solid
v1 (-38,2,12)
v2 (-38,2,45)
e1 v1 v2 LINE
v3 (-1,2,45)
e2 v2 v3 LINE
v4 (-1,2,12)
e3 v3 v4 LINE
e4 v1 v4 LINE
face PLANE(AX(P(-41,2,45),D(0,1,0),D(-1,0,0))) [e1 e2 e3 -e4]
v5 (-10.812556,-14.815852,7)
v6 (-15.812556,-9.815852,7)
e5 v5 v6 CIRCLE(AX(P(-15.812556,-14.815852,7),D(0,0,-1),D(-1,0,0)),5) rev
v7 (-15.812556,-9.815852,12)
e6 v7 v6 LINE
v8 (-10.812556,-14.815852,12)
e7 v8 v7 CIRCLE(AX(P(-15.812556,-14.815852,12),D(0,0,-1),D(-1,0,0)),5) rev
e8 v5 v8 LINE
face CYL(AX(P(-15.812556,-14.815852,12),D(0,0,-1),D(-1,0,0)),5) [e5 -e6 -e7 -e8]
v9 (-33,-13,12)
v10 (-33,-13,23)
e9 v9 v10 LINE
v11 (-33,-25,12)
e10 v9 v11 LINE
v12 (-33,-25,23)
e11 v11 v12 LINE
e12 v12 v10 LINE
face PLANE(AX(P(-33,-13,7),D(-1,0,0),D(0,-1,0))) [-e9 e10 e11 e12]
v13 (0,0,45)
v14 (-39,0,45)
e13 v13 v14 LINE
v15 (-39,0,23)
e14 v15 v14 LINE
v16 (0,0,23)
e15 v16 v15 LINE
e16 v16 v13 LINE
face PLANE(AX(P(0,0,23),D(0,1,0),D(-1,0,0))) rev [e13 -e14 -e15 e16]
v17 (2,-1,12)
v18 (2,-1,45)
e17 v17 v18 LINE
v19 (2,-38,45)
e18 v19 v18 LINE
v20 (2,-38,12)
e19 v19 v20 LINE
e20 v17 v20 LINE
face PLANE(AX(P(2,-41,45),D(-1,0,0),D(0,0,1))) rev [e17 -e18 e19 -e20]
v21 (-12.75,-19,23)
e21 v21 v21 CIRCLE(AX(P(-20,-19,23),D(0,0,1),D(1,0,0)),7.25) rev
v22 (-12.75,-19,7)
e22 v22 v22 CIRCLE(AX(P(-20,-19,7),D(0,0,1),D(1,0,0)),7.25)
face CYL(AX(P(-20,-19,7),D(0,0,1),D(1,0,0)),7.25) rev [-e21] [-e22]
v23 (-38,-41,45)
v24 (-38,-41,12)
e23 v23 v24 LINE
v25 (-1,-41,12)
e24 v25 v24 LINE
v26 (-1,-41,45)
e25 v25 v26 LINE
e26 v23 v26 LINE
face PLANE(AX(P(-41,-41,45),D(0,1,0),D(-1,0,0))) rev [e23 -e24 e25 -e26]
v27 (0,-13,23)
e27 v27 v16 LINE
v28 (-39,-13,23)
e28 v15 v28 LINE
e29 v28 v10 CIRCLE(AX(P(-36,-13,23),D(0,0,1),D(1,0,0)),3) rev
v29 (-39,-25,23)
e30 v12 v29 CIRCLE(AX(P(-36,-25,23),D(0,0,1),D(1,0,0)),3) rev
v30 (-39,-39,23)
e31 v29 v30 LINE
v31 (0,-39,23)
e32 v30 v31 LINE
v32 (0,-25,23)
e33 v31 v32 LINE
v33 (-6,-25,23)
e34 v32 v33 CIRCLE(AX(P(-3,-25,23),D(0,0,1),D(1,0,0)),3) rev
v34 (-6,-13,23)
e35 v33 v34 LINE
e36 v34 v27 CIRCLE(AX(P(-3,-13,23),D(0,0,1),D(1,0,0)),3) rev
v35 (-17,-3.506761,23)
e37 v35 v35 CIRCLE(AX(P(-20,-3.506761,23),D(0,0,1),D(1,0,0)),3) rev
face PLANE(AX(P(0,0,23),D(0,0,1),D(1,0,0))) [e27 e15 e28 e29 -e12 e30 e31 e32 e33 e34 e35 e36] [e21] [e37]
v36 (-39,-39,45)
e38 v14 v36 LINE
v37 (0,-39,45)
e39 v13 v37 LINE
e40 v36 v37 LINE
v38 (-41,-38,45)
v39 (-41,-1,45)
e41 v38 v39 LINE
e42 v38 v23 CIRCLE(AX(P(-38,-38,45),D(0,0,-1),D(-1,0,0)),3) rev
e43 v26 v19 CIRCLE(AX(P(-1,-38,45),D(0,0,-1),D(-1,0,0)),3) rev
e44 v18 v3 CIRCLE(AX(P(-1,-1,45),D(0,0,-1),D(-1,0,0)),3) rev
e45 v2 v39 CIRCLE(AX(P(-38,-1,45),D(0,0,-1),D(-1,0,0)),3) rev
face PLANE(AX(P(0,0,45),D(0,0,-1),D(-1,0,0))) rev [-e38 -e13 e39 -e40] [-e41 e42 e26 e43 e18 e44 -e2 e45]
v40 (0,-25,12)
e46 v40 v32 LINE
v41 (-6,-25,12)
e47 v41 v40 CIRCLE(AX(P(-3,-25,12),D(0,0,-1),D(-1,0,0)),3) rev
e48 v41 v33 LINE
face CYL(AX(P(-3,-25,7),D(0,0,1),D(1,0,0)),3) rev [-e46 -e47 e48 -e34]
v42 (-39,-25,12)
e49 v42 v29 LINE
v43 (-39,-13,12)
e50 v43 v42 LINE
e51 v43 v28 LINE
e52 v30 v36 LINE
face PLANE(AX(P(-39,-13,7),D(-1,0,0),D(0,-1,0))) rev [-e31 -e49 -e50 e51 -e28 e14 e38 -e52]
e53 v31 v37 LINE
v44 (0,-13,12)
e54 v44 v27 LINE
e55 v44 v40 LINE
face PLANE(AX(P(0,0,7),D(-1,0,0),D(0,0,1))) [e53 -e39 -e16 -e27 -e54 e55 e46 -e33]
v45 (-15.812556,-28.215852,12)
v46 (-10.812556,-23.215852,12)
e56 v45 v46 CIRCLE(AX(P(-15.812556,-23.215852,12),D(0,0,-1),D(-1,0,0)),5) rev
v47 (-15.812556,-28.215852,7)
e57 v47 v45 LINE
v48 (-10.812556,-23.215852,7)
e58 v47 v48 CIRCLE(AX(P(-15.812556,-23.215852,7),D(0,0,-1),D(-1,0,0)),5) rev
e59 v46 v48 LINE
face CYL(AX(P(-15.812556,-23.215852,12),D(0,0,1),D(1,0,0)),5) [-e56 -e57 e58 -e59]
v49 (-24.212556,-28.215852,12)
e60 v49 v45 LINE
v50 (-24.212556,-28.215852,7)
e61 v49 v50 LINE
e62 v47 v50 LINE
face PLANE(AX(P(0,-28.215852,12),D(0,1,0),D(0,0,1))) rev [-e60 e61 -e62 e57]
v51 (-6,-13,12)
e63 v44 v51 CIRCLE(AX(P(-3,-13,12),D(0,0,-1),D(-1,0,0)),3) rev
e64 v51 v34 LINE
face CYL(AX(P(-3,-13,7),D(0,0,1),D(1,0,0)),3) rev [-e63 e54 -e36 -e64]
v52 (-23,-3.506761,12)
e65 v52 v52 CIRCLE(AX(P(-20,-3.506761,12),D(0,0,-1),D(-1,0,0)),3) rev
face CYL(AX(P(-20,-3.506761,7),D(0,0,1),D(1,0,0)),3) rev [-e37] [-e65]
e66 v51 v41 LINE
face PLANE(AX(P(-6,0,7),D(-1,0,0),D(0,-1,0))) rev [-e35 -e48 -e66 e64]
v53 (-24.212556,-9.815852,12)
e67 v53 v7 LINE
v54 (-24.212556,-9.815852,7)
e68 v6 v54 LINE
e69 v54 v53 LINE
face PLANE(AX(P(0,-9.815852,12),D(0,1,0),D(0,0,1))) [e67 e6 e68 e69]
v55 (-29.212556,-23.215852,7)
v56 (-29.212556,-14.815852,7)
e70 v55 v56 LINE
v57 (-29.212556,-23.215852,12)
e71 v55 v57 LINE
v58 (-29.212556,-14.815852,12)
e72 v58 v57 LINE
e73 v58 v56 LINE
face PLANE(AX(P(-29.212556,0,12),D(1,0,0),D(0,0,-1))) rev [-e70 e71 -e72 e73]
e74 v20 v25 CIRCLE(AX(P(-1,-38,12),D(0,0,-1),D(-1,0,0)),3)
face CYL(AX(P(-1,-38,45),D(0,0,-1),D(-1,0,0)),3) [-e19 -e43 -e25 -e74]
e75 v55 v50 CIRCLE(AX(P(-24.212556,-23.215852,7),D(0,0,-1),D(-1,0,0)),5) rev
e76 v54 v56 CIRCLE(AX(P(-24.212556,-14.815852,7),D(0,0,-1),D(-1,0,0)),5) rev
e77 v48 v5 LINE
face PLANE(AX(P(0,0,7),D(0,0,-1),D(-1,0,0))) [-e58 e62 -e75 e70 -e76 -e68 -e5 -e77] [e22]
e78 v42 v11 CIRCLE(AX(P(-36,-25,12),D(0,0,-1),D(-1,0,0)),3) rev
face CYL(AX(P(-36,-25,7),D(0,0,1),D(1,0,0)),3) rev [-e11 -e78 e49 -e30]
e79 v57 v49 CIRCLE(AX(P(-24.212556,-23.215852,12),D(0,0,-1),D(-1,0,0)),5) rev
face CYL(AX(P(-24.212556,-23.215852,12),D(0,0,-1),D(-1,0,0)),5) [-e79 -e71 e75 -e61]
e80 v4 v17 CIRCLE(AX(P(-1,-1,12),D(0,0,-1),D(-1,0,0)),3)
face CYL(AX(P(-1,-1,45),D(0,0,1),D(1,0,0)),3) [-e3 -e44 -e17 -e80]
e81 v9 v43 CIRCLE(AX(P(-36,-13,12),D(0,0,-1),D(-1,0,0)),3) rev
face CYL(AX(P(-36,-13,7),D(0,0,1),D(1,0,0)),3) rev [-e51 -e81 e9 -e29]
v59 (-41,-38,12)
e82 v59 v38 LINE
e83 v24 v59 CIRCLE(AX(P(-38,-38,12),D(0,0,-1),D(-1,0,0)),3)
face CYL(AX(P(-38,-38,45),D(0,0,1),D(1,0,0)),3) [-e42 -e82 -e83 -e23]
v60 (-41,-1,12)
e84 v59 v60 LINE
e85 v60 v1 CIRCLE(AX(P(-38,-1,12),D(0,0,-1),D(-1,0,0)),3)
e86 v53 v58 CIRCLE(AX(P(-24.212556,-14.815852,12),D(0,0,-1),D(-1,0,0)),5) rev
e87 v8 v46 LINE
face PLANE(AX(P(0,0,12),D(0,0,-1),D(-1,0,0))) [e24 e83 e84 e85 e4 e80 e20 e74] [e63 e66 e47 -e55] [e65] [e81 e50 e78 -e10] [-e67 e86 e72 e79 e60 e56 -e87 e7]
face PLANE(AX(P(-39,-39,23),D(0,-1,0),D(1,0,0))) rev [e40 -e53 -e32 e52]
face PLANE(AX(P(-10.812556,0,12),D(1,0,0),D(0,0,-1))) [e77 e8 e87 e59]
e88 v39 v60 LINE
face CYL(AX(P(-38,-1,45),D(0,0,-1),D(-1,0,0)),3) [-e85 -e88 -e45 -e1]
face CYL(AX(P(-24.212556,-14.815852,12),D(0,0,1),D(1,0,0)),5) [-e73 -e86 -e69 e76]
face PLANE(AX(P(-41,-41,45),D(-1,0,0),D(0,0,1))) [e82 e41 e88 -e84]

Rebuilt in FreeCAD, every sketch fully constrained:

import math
import FreeCAD as App
import Part
import Sketcher
from FreeCAD import Vector


def edges_at(feature, points):
    """Names of the edges that pass closest to the given points."""
    edges = feature.Shape.Edges
    near = lambda p: min(range(len(edges)), key=lambda i: edges[i].distToShape(Part.Vertex(*p))[0])
    return sorted({f"Edge{near(p) + 1}" for p in points})


def add_polygon(sketch, points):
    """Adds a closed chain of lines whose ends are joined by coincident constraints."""
    first, n = sketch.GeometryCount, len(points)
    for a, b in zip(points, points[1:] + points[:1]):
        sketch.addGeometry(Part.LineSegment(App.Vector(*a, 0), App.Vector(*b, 0)), False)
    for i in range(n):
        sketch.addConstraint(Sketcher.Constraint("Coincident", first + i, 2, first + (i + 1) % n, 1))

doc = App.newDocument("Part")
body = doc.addObject("PartDesign::Body", "Body")

sketch1 = doc.addObject("Sketcher::SketchObject", "Sketch")
body.addObject(sketch1)
sketch1.AttachmentSupport = (doc.XY_Plane, [""])
sketch1.MapMode = "FlatFace"
add_polygon(sketch1, [(-41, -41), (2, -41), (2, 2), (-41, 2)])
sketch1.addConstraint([
    Sketcher.Constraint("Horizontal", 0),
    Sketcher.Constraint("Vertical", 1),
    Sketcher.Constraint("Horizontal", 2),
    Sketcher.Constraint("Vertical", 3),
    Sketcher.Constraint("Equal", 2, 1),
    Sketcher.Constraint("DistanceX", 0, 1, 0, 2, 43.0),
    Sketcher.Constraint("DistanceX", -1, 1, 0, 2, 2.0),
    Sketcher.Constraint("DistanceY", 0, 2, -1, 1, 41.0),
])
pad1 = doc.addObject("PartDesign::Pad", "Pad")
body.addObject(pad1)
pad1.Profile = sketch1
pad1.Length = 45

sketch2 = doc.addObject("Sketcher::SketchObject", "Sketch001")
body.addObject(sketch2)
sketch2.AttachmentSupport = (doc.XY_Plane, [""])
sketch2.MapMode = "FlatFace"
sketch2.AttachmentOffset = App.Placement(Vector(0, 0, 45), App.Rotation())
sketch2.addGeometry([
    Part.Circle(Vector(-20, -3.506761, 0), Vector(0, 0, 1), 3),
    Part.Circle(Vector(-20, -19, 0), Vector(0, 0, 1), 7.25),
    Part.LineSegment(Vector(-6, -13, 0), Vector(-6, -25, 0)),
    Part.ArcOfCircle(Part.Circle(Vector(-3, -25, 0), Vector(0, 0, 1), 3), math.radians(180), math.radians(360)),
    Part.LineSegment(Vector(0, -25, 0), Vector(0, -13, 0)),
    Part.ArcOfCircle(Part.Circle(Vector(-3, -13, 0), Vector(0, 0, 1), 3), math.radians(0), math.radians(180)),
    Part.LineSegment(Vector(-33, -25, 0), Vector(-33, -13, 0)),
    Part.ArcOfCircle(Part.Circle(Vector(-36, -13, 0), Vector(0, 0, 1), 3), math.radians(0), math.radians(180)),
    Part.LineSegment(Vector(-39, -13, 0), Vector(-39, -25, 0)),
    Part.ArcOfCircle(Part.Circle(Vector(-36, -25, 0), Vector(0, 0, 1), 3), math.radians(180), math.radians(360)),
], False)
sketch2.addConstraint([
    Sketcher.Constraint("Tangent", 2, 2, 3, 1),
    Sketcher.Constraint("Tangent", 3, 2, 4, 1),
    Sketcher.Constraint("Tangent", 4, 2, 5, 1),
    Sketcher.Constraint("Tangent", 5, 2, 2, 1),
    Sketcher.Constraint("Tangent", 6, 2, 7, 1),
    Sketcher.Constraint("Tangent", 7, 2, 8, 1),
    Sketcher.Constraint("Tangent", 8, 2, 9, 1),
    Sketcher.Constraint("Tangent", 9, 2, 6, 1),
    Sketcher.Constraint("Vertical", 2),
    Sketcher.Constraint("Vertical", 4),
    Sketcher.Constraint("Vertical", 6),
    Sketcher.Constraint("Vertical", 8),
    Sketcher.Constraint("Equal", 0, 3),
    Sketcher.Constraint("Equal", 5, 7),
    Sketcher.Constraint("PointOnObject", 3, 2, -2),
    Sketcher.Constraint("Horizontal", 5, 3, 7, 3),
    Sketcher.Constraint("Horizontal", 3, 3, 9, 3),
    Sketcher.Constraint("Vertical", 0, 3, 1, 3),
    Sketcher.Constraint("Diameter", 0, 6.0),
    Sketcher.Constraint("Diameter", 1, 14.5),
    Sketcher.Constraint("DistanceY", 2, 2, 2, 1, 12.0),
    Sketcher.Constraint("DistanceX", 0, 3, -1, 1, 20.0),
    Sketcher.Constraint("DistanceY", 1, 3, -1, 1, 19.0),
    Sketcher.Constraint("DistanceY", 3, 3, -1, 1, 25.0),
    Sketcher.Constraint("DistanceX", 7, 3, -1, 1, 36.0),
    Sketcher.Constraint("DistanceY", 0, 3, -1, 1, 3.506761),
])
pocket1 = doc.addObject("PartDesign::Pocket", "Pocket")
body.addObject(pocket1)
pocket1.Profile = sketch2
pocket1.Length = 38

sketch3 = doc.addObject("Sketcher::SketchObject", "Sketch002")
body.addObject(sketch3)
sketch3.AttachmentSupport = (doc.XY_Plane, [""])
sketch3.MapMode = "FlatFace"
sketch3.AttachmentOffset = App.Placement(Vector(0, 0, 45), App.Rotation())
add_polygon(sketch3, [(-39, 0), (-39, -39), (0, -39), (0, 0)])
sketch3.addConstraint([
    Sketcher.Constraint("Vertical", 0),
    Sketcher.Constraint("Horizontal", 1),
    Sketcher.Constraint("Vertical", 2),
    Sketcher.Constraint("Horizontal", 3),
    Sketcher.Constraint("Coincident", 2, 2, -1, 1),
    Sketcher.Constraint("Equal", 3, 0),
    Sketcher.Constraint("DistanceX", 1, 1, 1, 2, 39.0),
])
pocket2 = doc.addObject("PartDesign::Pocket", "Pocket001")
body.addObject(pocket2)
pocket2.Profile = sketch3
pocket2.Length = 22

sketch4 = doc.addObject("Sketcher::SketchObject", "Sketch003")
body.addObject(sketch4)
sketch4.AttachmentSupport = (doc.XY_Plane, [""])
sketch4.MapMode = "FlatFace"
add_polygon(sketch4, [(-41, -41), (-41, 2), (2, 2), (2, -41)])
add_polygon(sketch4, [(-10.812556, -9.815852), (-29.212556, -9.815852), (-29.212556, -28.215852), (-10.812556, -28.215852)])
sketch4.addConstraint([
    Sketcher.Constraint("Vertical", 0),
    Sketcher.Constraint("Horizontal", 1),
    Sketcher.Constraint("Vertical", 2),
    Sketcher.Constraint("Horizontal", 3),
    Sketcher.Constraint("Horizontal", 4),
    Sketcher.Constraint("Vertical", 5),
    Sketcher.Constraint("Horizontal", 6),
    Sketcher.Constraint("Vertical", 7),
    Sketcher.Constraint("Equal", 3, 0),
    Sketcher.Constraint("Equal", 6, 5),
    Sketcher.Constraint("DistanceX", 1, 1, 1, 2, 43.0),
    Sketcher.Constraint("DistanceX", 4, 2, 4, 1, 18.4),
    Sketcher.Constraint("DistanceX", 0, 2, -1, 1, 41.0),
    Sketcher.Constraint("DistanceY", -1, 1, 0, 2, 2.0),
    Sketcher.Constraint("DistanceX", 4, 2, -1, 1, 29.212556),
    Sketcher.Constraint("DistanceY", 4, 2, -1, 1, 9.815852),
])
pocket3 = doc.addObject("PartDesign::Pocket", "Pocket002")
body.addObject(pocket3)
pocket3.Profile = sketch4
pocket3.Length = 12
pocket3.Reversed = True
doc.recompute()

fillet = doc.addObject("PartDesign::Fillet", "Fillet")
body.addObject(fillet)
fillet.Base = (pocket3, edges_at(pocket3, [
    (-10.813, -9.816, 6),
    (-10.813, -28.216, 6),
    (-29.213, -28.216, 6),
    (-29.213, -9.816, 6),
]))
fillet.Radius = 5
doc.recompute()

fillet2 = doc.addObject("PartDesign::Fillet", "Fillet001")
body.addObject(fillet2)
fillet2.Base = (fillet, edges_at(fillet, [
    (-41, -41, 28.5),
    (2, -41, 28.5),
    (2, 2, 28.5),
    (-41, 2, 28.5),
]))
fillet2.Radius = 3

sketch5 = doc.addObject("Sketcher::SketchObject", "Sketch004")
body.addObject(sketch5)
sketch5.AttachmentSupport = (doc.XY_Plane, [""])
sketch5.MapMode = "FlatFace"
add_polygon(sketch5, [(-30.016151, -28.459609), (-30.016151, -9.135707), (-9.781102, -9.135707), (-9.781102, -28.459609)])
sketch5.addConstraint([
    Sketcher.Constraint("Vertical", 0),
    Sketcher.Constraint("Horizontal", 1),
    Sketcher.Constraint("Vertical", 2),
    Sketcher.Constraint("Horizontal", 3),
    Sketcher.Constraint("DistanceY", 0, 1, 0, 2, 19.323902),
    Sketcher.Constraint("DistanceX", 1, 1, 1, 2, 20.235048),
    Sketcher.Constraint("DistanceX", 0, 2, -1, 1, 30.016151),
    Sketcher.Constraint("DistanceY", 2, 2, -1, 1, 28.459609),
])
pocket4 = doc.addObject("PartDesign::Pocket", "Pocket003")
body.addObject(pocket4)
pocket4.Profile = sketch5
pocket4.Length = 7
pocket4.Reversed = True

doc.recompute()
